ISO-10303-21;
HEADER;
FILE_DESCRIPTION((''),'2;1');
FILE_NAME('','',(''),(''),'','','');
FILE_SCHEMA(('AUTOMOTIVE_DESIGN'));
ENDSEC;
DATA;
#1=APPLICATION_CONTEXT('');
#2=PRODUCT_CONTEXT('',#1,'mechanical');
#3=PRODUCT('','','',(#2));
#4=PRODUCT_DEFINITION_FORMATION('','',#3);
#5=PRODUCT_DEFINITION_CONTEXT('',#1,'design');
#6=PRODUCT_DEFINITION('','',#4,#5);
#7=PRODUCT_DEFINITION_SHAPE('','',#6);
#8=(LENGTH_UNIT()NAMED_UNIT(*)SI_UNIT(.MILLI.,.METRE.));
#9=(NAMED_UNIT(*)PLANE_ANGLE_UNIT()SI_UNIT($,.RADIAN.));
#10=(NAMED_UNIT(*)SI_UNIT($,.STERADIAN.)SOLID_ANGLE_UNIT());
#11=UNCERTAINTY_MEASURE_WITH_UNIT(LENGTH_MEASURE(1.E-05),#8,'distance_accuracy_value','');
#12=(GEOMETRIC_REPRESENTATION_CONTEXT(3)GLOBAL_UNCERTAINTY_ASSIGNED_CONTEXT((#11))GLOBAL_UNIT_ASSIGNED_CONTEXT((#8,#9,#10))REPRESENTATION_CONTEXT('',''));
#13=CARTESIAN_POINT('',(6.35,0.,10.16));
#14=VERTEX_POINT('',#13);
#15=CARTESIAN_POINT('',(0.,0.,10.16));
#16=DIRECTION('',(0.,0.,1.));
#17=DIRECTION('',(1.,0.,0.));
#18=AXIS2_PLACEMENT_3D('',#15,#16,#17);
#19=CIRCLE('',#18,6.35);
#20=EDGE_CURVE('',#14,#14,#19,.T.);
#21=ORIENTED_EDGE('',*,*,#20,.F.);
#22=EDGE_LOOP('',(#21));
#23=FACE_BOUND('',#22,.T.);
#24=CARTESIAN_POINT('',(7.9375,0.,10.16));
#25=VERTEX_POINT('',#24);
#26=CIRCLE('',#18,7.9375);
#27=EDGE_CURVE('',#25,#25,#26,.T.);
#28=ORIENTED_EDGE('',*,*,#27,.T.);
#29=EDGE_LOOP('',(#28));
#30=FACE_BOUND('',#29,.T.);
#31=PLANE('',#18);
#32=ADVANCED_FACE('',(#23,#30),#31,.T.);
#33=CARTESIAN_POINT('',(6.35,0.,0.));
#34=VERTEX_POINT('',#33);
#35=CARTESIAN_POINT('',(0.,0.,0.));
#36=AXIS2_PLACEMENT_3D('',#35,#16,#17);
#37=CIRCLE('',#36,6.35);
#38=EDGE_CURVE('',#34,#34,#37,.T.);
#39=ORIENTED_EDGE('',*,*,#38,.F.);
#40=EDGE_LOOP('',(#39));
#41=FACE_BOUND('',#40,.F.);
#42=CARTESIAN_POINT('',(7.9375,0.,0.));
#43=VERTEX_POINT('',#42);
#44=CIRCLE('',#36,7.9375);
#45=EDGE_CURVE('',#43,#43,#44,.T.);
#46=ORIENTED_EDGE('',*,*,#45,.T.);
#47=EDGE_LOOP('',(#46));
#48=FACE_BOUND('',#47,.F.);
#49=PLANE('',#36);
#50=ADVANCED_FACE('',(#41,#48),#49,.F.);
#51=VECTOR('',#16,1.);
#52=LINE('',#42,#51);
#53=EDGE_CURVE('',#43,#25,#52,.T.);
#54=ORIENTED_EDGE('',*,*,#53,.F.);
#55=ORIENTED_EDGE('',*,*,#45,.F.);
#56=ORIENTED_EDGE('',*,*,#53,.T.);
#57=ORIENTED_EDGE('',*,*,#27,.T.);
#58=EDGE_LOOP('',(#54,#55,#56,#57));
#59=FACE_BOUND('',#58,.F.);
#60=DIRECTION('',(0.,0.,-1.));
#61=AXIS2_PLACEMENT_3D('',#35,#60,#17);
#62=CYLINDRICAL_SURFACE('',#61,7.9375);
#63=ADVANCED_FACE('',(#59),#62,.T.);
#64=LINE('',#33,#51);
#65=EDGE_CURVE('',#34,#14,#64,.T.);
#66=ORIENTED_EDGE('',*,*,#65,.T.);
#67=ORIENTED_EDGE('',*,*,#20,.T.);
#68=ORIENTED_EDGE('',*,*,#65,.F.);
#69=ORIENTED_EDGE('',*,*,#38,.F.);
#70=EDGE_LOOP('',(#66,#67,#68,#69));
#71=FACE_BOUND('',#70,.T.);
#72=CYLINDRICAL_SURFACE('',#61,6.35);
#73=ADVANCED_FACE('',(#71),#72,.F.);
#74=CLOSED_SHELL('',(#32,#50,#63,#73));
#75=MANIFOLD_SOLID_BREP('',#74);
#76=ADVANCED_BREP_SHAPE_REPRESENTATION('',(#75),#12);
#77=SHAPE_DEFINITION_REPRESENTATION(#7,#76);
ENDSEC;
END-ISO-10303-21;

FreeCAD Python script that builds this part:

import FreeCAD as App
import Part
import Sketcher
from FreeCAD import Vector
Q = App.Units.Quantity

doc = App.newDocument("Part")
body = doc.addObject("PartDesign::Body", "Body")

# Sketch on XY plane
sketch1 = doc.addObject("Sketcher::SketchObject", "Sketch")
body.addObject(sketch1)
sketch1.AttachmentSupport = (doc.XY_Plane, [""])
sketch1.MapMode = "FlatFace"
sketch1.addGeometry([
    Part.Circle(Vector(0, 0, 0), Vector(0, 0, 1), 8),
    Part.Circle(Vector(0, 0, 0), Vector(0, 0, 1), 6),
], False)
sketch1.addConstraint([
    Sketcher.Constraint("Coincident", 0, 3, -1, 1),
    Sketcher.Constraint("Coincident", 1, 3, -1, 1),
    Sketcher.Constraint("Diameter", 1, Q("0.5 in")),
    Sketcher.Constraint("Diameter", 0, Q("0.625 in")),
])
pad1 = doc.addObject("PartDesign::Pad", "Pad")
body.addObject(pad1)
pad1.Profile = sketch1
pad1.Length = Q("0.4 in")

doc.recompute()
